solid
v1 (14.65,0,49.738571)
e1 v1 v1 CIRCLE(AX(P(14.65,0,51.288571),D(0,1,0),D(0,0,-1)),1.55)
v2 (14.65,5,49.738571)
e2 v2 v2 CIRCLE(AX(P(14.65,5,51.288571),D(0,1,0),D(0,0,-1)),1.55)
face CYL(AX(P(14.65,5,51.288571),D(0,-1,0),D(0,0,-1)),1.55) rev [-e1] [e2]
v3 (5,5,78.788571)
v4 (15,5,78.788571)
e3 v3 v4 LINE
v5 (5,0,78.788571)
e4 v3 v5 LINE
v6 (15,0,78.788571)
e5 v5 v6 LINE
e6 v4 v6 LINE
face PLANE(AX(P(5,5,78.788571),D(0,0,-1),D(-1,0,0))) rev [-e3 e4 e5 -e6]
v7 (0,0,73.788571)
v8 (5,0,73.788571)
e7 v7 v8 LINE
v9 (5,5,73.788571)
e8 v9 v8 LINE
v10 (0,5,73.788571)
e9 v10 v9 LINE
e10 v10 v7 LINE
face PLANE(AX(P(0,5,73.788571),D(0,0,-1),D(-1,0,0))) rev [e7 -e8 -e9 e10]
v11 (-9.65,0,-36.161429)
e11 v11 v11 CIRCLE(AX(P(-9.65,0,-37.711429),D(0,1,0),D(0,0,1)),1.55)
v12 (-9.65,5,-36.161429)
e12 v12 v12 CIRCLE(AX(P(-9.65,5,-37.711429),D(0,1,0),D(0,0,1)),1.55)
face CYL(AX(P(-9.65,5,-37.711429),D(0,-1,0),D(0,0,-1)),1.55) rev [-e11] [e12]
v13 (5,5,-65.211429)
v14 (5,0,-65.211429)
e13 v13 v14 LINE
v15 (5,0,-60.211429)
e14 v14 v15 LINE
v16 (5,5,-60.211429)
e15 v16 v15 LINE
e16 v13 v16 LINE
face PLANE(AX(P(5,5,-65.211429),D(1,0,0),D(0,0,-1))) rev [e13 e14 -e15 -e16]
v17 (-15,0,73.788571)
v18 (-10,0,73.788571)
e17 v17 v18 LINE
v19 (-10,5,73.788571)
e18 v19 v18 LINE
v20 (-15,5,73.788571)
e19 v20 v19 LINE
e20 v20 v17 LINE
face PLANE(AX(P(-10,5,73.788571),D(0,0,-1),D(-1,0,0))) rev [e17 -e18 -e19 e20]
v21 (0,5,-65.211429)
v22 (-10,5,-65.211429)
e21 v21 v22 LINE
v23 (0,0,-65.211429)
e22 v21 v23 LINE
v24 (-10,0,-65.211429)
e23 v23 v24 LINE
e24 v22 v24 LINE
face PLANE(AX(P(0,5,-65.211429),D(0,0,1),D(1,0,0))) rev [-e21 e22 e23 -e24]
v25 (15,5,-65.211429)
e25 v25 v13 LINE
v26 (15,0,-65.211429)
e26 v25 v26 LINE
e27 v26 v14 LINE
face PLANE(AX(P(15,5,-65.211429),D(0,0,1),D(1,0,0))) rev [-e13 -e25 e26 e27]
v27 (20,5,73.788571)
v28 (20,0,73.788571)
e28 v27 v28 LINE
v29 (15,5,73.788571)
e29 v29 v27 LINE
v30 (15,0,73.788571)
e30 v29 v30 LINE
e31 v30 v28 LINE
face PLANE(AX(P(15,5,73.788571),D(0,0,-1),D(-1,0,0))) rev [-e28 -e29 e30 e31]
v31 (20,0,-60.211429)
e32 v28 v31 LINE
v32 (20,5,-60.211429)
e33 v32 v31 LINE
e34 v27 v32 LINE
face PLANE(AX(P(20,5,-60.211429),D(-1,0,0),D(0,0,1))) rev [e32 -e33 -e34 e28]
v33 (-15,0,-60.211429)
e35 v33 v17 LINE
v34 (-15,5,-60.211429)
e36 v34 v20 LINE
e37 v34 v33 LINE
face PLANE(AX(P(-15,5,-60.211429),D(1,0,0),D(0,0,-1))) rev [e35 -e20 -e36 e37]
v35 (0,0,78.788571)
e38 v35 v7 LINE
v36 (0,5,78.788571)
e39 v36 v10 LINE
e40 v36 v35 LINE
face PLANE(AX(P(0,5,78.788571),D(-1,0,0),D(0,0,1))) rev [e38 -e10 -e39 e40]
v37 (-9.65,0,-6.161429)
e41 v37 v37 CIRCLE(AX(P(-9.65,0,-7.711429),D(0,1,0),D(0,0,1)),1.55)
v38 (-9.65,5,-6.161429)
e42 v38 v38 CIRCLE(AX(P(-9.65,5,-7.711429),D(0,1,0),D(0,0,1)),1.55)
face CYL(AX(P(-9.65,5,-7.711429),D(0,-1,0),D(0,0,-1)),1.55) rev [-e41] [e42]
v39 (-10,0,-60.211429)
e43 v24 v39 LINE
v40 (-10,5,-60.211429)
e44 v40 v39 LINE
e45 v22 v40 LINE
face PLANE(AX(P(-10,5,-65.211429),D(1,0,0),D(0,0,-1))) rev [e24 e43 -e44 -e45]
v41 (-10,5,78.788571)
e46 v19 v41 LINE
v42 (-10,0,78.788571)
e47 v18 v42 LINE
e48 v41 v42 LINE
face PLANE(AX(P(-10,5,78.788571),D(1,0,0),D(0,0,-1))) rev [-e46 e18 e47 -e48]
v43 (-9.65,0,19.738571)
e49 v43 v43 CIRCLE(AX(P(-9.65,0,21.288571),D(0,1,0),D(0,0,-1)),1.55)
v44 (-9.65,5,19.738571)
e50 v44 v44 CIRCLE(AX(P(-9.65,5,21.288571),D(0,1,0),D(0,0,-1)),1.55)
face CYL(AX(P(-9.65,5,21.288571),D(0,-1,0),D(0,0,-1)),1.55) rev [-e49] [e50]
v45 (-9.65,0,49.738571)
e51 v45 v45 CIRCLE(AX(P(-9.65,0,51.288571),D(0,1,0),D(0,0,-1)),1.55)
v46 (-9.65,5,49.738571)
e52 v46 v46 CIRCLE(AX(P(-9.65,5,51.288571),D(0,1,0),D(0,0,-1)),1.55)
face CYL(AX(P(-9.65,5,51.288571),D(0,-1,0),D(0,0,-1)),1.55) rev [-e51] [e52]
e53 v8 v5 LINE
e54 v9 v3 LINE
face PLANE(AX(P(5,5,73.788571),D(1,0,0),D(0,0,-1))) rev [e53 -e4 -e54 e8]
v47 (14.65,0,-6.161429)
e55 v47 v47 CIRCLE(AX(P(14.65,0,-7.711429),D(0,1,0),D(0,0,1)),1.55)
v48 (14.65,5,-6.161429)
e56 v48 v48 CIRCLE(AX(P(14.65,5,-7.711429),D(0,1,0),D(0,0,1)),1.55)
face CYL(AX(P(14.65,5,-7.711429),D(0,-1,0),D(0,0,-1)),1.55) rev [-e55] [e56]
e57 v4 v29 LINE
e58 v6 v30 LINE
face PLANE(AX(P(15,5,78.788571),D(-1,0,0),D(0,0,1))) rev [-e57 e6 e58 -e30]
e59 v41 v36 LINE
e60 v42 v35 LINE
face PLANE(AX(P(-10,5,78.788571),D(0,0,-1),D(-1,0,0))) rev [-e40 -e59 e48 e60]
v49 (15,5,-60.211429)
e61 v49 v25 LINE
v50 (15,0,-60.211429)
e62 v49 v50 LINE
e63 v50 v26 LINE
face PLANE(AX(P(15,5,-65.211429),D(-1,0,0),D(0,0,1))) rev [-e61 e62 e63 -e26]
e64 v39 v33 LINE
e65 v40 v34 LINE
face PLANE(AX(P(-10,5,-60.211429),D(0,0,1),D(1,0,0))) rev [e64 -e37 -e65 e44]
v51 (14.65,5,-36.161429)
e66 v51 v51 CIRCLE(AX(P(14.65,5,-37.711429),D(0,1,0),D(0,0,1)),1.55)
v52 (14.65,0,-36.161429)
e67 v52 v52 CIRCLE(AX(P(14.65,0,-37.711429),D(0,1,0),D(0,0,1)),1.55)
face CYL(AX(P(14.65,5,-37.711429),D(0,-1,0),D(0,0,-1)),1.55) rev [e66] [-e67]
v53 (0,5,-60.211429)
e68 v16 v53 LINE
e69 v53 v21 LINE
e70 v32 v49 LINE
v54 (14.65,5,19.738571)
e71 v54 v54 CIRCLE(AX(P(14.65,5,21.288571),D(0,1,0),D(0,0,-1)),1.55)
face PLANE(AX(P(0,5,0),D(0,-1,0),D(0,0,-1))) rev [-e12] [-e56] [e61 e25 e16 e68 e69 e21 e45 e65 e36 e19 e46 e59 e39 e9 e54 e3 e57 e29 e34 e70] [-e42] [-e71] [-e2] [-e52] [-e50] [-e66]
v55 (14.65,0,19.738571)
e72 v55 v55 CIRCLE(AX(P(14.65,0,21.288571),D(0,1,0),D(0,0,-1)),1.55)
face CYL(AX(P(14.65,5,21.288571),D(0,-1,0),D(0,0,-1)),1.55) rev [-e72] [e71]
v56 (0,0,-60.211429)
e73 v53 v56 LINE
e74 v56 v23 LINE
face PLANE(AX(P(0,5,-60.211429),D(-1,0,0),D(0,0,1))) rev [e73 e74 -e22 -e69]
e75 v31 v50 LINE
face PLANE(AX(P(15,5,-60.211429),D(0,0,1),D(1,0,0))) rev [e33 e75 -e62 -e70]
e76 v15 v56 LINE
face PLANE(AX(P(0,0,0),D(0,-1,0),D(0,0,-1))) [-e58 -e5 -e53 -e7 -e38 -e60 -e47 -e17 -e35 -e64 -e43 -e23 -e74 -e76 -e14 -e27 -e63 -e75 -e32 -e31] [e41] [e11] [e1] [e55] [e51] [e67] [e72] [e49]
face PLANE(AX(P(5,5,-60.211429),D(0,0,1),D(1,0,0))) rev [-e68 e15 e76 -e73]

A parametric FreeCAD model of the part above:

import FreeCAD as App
import Part
import Sketcher
from FreeCAD import Vector

doc = App.newDocument("Part")
params = doc.addObject("Spreadsheet::Sheet", "Params")
for row, (alias, value) in enumerate([
    ("sketch1_diameter", "3.1 mm"),
    ("sketch1_width", "10 mm"),
    ("sketch1_width2", "5 mm"),
    ("sketch1_height", "134 mm"),
    ("pad1_length", "5 mm"),
], start=1):
    params.set(f"A{row}", alias)
    params.set(f"B{row}", "=" + value)
    params.setAlias(f"B{row}", alias)

body = doc.addObject("PartDesign::Body", "Body")

# Sketch on XZ plane
sketch1 = body.newObject("Sketcher::SketchObject", "Sketch")
sketch1.AttachmentSupport = (doc.getObject("XZ_Plane"), [""])
sketch1.MapMode = "FlatFace"
sketch1.addGeometry(Part.LineSegment(Vector(-10, 78.8, 0), Vector(0, 78.8, 0)), False)
sketch1.addGeometry(Part.LineSegment(Vector(0, 78.8, 0), Vector(0, 73.8, 0)), False)
sketch1.addGeometry(Part.LineSegment(Vector(0, 73.8, 0), Vector(5, 73.8, 0)), False)
sketch1.addGeometry(Part.LineSegment(Vector(5, 73.8, 0), Vector(5, 78.8, 0)), False)
sketch1.addGeometry(Part.LineSegment(Vector(5, 78.8, 0), Vector(15, 78.8, 0)), False)
sketch1.addGeometry(Part.LineSegment(Vector(15, 78.8, 0), Vector(15, 73.8, 0)), False)
sketch1.addGeometry(Part.LineSegment(Vector(15, 73.8, 0), Vector(20, 73.8, 0)), False)
sketch1.addGeometry(Part.LineSegment(Vector(20, 73.8, 0), Vector(20, -60.2, 0)), False)
sketch1.addGeometry(Part.LineSegment(Vector(20, -60.2, 0), Vector(15, -60.2, 0)), False)
sketch1.addGeometry(Part.LineSegment(Vector(15, -60.2, 0), Vector(15, -65.2, 0)), False)
sketch1.addGeometry(Part.LineSegment(Vector(15, -65.2, 0), Vector(5, -65.2, 0)), False)
sketch1.addGeometry(Part.LineSegment(Vector(5, -65.2, 0), Vector(5, -60.2, 0)), False)
sketch1.addGeometry(Part.LineSegment(Vector(5, -60.2, 0), Vector(0, -60.2, 0)), False)
sketch1.addGeometry(Part.LineSegment(Vector(0, -60.2, 0), Vector(0, -65.2, 0)), False)
sketch1.addGeometry(Part.LineSegment(Vector(0, -65.2, 0), Vector(-10, -65.2, 0)), False)
sketch1.addGeometry(Part.LineSegment(Vector(-10, -65.2, 0), Vector(-10, -60.2, 0)), False)
sketch1.addGeometry(Part.LineSegment(Vector(-10, -60.2, 0), Vector(-15, -60.2, 0)), False)
sketch1.addGeometry(Part.LineSegment(Vector(-15, -60.2, 0), Vector(-15, 73.8, 0)), False)
sketch1.addGeometry(Part.LineSegment(Vector(-15, 73.8, 0), Vector(-10, 73.8, 0)), False)
sketch1.addGeometry(Part.LineSegment(Vector(-10, 73.8, 0), Vector(-10, 78.8, 0)), False)
sketch1.addGeometry(Part.Circle(Vector(-9.7, 51.3, 0), Vector(0, 0, 1), 1.6), False)
sketch1.addGeometry(Part.Circle(Vector(-9.7, 21.3, 0), Vector(0, 0, 1), 1.6), False)
sketch1.addGeometry(Part.Circle(Vector(14.7, 51.3, 0), Vector(0, 0, 1), 1.6), False)
sketch1.addGeometry(Part.Circle(Vector(14.7, 21.3, 0), Vector(0, 0, 1), 1.6), False)
sketch1.addGeometry(Part.Circle(Vector(-9.7, -7.7, 0), Vector(0, 0, 1), 1.6), False)
sketch1.addGeometry(Part.Circle(Vector(-9.7, -37.7, 0), Vector(0, 0, 1), 1.6), False)
sketch1.addGeometry(Part.Circle(Vector(14.7, -7.7, 0), Vector(0, 0, 1), 1.6), False)
sketch1.addGeometry(Part.Circle(Vector(14.7, -37.7, 0), Vector(0, 0, 1), 1.6), False)
sketch1.addConstraint(Sketcher.Constraint("Coincident", 0, 2, 1, 1))
sketch1.addConstraint(Sketcher.Constraint("Coincident", 1, 2, 2, 1))
sketch1.addConstraint(Sketcher.Constraint("Coincident", 2, 2, 3, 1))
sketch1.addConstraint(Sketcher.Constraint("Coincident", 3, 2, 4, 1))
sketch1.addConstraint(Sketcher.Constraint("Coincident", 4, 2, 5, 1))
sketch1.addConstraint(Sketcher.Constraint("Coincident", 5, 2, 6, 1))
sketch1.addConstraint(Sketcher.Constraint("Coincident", 6, 2, 7, 1))
sketch1.addConstraint(Sketcher.Constraint("Coincident", 7, 2, 8, 1))
sketch1.addConstraint(Sketcher.Constraint("Coincident", 8, 2, 9, 1))
sketch1.addConstraint(Sketcher.Constraint("Coincident", 9, 2, 10, 1))
sketch1.addConstraint(Sketcher.Constraint("Coincident", 10, 2, 11, 1))
sketch1.addConstraint(Sketcher.Constraint("Coincident", 11, 2, 12, 1))
sketch1.addConstraint(Sketcher.Constraint("Coincident", 12, 2, 13, 1))
sketch1.addConstraint(Sketcher.Constraint("Coincident", 13, 2, 14, 1))
sketch1.addConstraint(Sketcher.Constraint("Coincident", 14, 2, 15, 1))
sketch1.addConstraint(Sketcher.Constraint("Coincident", 15, 2, 16, 1))
sketch1.addConstraint(Sketcher.Constraint("Coincident", 16, 2, 17, 1))
sketch1.addConstraint(Sketcher.Constraint("Coincident", 17, 2, 18, 1))
sketch1.addConstraint(Sketcher.Constraint("Coincident", 18, 2, 19, 1))
sketch1.addConstraint(Sketcher.Constraint("Coincident", 19, 2, 0, 1))
sketch1.addConstraint(Sketcher.Constraint("Horizontal", 0))
sketch1.addConstraint(Sketcher.Constraint("Vertical", 1))
sketch1.addConstraint(Sketcher.Constraint("Horizontal", 2))
sketch1.addConstraint(Sketcher.Constraint("Vertical", 3))
sketch1.addConstraint(Sketcher.Constraint("Horizontal", 4))
sketch1.addConstraint(Sketcher.Constraint("Vertical", 5))
sketch1.addConstraint(Sketcher.Constraint("Horizontal", 6))
sketch1.addConstraint(Sketcher.Constraint("Vertical", 7))
sketch1.addConstraint(Sketcher.Constraint("Horizontal", 8))
sketch1.addConstraint(Sketcher.Constraint("Vertical", 9))
sketch1.addConstraint(Sketcher.Constraint("Horizontal", 10))
sketch1.addConstraint(Sketcher.Constraint("Vertical", 11))
sketch1.addConstraint(Sketcher.Constraint("Horizontal", 12))
sketch1.addConstraint(Sketcher.Constraint("Vertical", 13))
sketch1.addConstraint(Sketcher.Constraint("Horizontal", 14))
sketch1.addConstraint(Sketcher.Constraint("Vertical", 15))
sketch1.addConstraint(Sketcher.Constraint("Horizontal", 16))
sketch1.addConstraint(Sketcher.Constraint("Vertical", 17))
sketch1.addConstraint(Sketcher.Constraint("Horizontal", 18))
sketch1.addConstraint(Sketcher.Constraint("Vertical", 19))
sketch1.addConstraint(Sketcher.Constraint("Equal", 20, 21))
sketch1.addConstraint(Sketcher.Constraint("Equal", 21, 22))
sketch1.addConstraint(Sketcher.Constraint("Equal", 22, 23))
sketch1.addConstraint(Sketcher.Constraint("Equal", 23, 24))
sketch1.addConstraint(Sketcher.Constraint("Equal", 24, 25))
sketch1.addConstraint(Sketcher.Constraint("Equal", 25, 26))
sketch1.addConstraint(Sketcher.Constraint("Equal", 26, 27))
sketch1.addConstraint(Sketcher.Constraint("Symmetric", 8, 2, 16, 2, -2))
sketch1.addConstraint(Sketcher.Constraint("Symmetric", 5, 2, 17, 2, -2))
sketch1.addConstraint(Sketcher.Constraint("PointOnObject", 0, 2, -2))
sketch1.addConstraint(Sketcher.Constraint("PointOnObject", 12, 2, -2))
sketch1.addConstraint(Sketcher.Constraint("Horizontal", 20, 3, 22, 3))
sketch1.addConstraint(Sketcher.Constraint("Horizontal", 21, 3, 23, 3))
sketch1.addConstraint(Sketcher.Constraint("Horizontal", 24, 3, 26, 3))
sketch1.addConstraint(Sketcher.Constraint("Horizontal", 25, 3, 27, 3))
sketch1.addConstraint(Sketcher.Constraint("Horizontal", 0, 2, 3, 2))
sketch1.addConstraint(Sketcher.Constraint("Horizontal", 2, 2, 5, 2))
sketch1.addConstraint(Sketcher.Constraint("Horizontal", 8, 2, 11, 2))
sketch1.addConstraint(Sketcher.Constraint("Horizontal", 10, 2, 13, 2))
sketch1.addConstraint(Sketcher.Constraint("Vertical", 20, 3, 21, 3))
sketch1.addConstraint(Sketcher.Constraint("Vertical", 22, 3, 23, 3))
sketch1.addConstraint(Sketcher.Constraint("Vertical", 21, 3, 24, 3))
sketch1.addConstraint(Sketcher.Constraint("Vertical", 24, 3, 25, 3))
sketch1.addConstraint(Sketcher.Constraint("Vertical", 23, 3, 26, 3))
sketch1.addConstraint(Sketcher.Constraint("Vertical", 26, 3, 27, 3))
sketch1.addConstraint(Sketcher.Constraint("Vertical", 3, 2, 10, 2))
sketch1.addConstraint(Sketcher.Constraint("Vertical", 15, 2, 18, 2))
sketch1.addConstraint(Sketcher.Constraint("Equal", 0, 4))
sketch1.addConstraint(Sketcher.Constraint("Equal", 2, 6))
sketch1.addConstraint(Sketcher.Constraint("Equal", 18, 1))
sketch1.addConstraint(Sketcher.Constraint("Equal", 5, 9))
sketch1.addConstraint(Sketcher.Constraint("Diameter", 20, 3.1))
sketch1.addConstraint(Sketcher.Constraint("DistanceX", 0, 1, 0, 2, 10.0))
sketch1.addConstraint(Sketcher.Constraint("DistanceX", 2, 1, 2, 2, 5.0))
sketch1.addConstraint(Sketcher.Constraint("DistanceY", 7, 2, 7, 1, 134.0))
sketch1.addConstraint(Sketcher.Constraint("DistanceY", 21, 3, 20, 3, 30.0))
sketch1.addConstraint(Sketcher.Constraint("DistanceY", 24, 3, 21, 3, 29.0))
sketch1.addConstraint(Sketcher.Constraint("DistanceY", 25, 3, 24, 3, 30.0))
sketch1.addConstraint(Sketcher.Constraint("DistanceX", 20, 3, 22, 3, 24.3))
sketch1.addConstraint(Sketcher.Constraint("DistanceY", 20, 3, 0, 2, 27.5))
sketch1.addConstraint(Sketcher.Constraint("DistanceX", 20, 3, -1, 1, 9.65))
sketch1.addConstraint(Sketcher.Constraint("DistanceY", -1, 1, 20, 3, 51.288571))
sketch1.setExpression("Constraints[71]", "Params.sketch1_diameter")
sketch1.setExpression("Constraints[72]", "Params.sketch1_width")
sketch1.setExpression("Constraints[73]", "Params.sketch1_width2")
sketch1.setExpression("Constraints[74]", "Params.sketch1_height")
pad1 = body.newObject("PartDesign::Pad", "Pad")
pad1.Profile = sketch1
pad1.setExpression("Length", "Params.pad1_length")
pad1.Reversed = True

doc.recompute()
